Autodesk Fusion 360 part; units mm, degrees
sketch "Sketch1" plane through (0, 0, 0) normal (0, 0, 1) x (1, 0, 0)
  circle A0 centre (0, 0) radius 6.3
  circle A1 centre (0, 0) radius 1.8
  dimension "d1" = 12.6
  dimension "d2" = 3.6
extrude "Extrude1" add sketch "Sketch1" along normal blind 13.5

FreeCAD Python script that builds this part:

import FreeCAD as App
import Part
import Sketcher
from FreeCAD import Vector

doc = App.newDocument("Part")
body = doc.addObject("PartDesign::Body", "Body")

sketch1 = doc.addObject("Sketcher::SketchObject", "Sketch")
body.addObject(sketch1)
sketch1.AttachmentSupport = (doc.XY_Plane, [""])
sketch1.MapMode = "FlatFace"
sketch1.addGeometry([
    Part.Circle(Vector(0, 0, 0), Vector(0, 0, 1), 6.3),
    Part.Circle(Vector(0, 0, 0), Vector(0, 0, 1), 1.8),
], False)
sketch1.addConstraint([
    Sketcher.Constraint("Coincident", 0, 3, -1, 1),
    Sketcher.Constraint("Coincident", 1, 3, -1, 1),
    Sketcher.Constraint("Diameter", 0, 12.6),
    Sketcher.Constraint("Diameter", 1, 3.6),
])
pad1 = doc.addObject("PartDesign::Pad", "Pad")
body.addObject(pad1)
pad1.Profile = sketch1
pad1.Length = 13.5

doc.recompute()
